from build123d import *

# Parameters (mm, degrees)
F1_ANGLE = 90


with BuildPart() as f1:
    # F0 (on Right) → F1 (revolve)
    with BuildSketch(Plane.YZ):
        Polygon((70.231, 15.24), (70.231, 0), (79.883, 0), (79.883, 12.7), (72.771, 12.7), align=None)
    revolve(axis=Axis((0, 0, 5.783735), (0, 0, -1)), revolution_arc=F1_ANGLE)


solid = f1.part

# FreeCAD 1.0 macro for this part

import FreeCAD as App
import Part
import Sketcher

V = App.Vector
Q = App.Units.Quantity

doc = App.newDocument("Part")
params = doc.addObject("Spreadsheet::Sheet", "Params")
for row, (alias, value) in enumerate([
    ("sketch1_height", "0.6 in"),
    ("sketch1_height2", "0.5 in"),
    ("sketch1_width", "0.38 in"),
    ("revolution_angle", "90 deg"),
], start=1):
    params.set(f"A{row}", alias)
    params.set(f"B{row}", "=" + value)
    params.setAlias(f"B{row}", alias)

body = doc.addObject("PartDesign::Body", "Body")

sketch1 = doc.addObject("Sketcher::SketchObject", "Sketch")
body.addObject(sketch1)
sketch1.AttachmentSupport = (doc.YZ_Plane, [""])
sketch1.MapMode = "FlatFace"
sketch1.addGeometry(Part.LineSegment(V(70.2, 15.2, 0), V(70.2, 0, 0)), False)
sketch1.addGeometry(Part.LineSegment(V(70.2, 0, 0), V(79.9, 0, 0)), False)
sketch1.addGeometry(Part.LineSegment(V(79.9, 0, 0), V(79.9, 12.7, 0)), False)
sketch1.addGeometry(Part.LineSegment(V(79.9, 12.7, 0), V(72.8, 12.7, 0)), False)
sketch1.addGeometry(Part.LineSegment(V(72.8, 12.7, 0), V(70.2, 15.2, 0)), False)
sketch1.addConstraint(Sketcher.Constraint("Coincident", 0, 2, 1, 1))
sketch1.addConstraint(Sketcher.Constraint("Coincident", 1, 2, 2, 1))
sketch1.addConstraint(Sketcher.Constraint("Coincident", 2, 2, 3, 1))
sketch1.addConstraint(Sketcher.Constraint("Coincident", 3, 2, 4, 1))
sketch1.addConstraint(Sketcher.Constraint("Coincident", 4, 2, 0, 1))
sketch1.addConstraint(Sketcher.Constraint("Vertical", 0))
sketch1.addConstraint(Sketcher.Constraint("Horizontal", 1))
sketch1.addConstraint(Sketcher.Constraint("Vertical", 2))
sketch1.addConstraint(Sketcher.Constraint("Horizontal", 3))
sketch1.addConstraint(Sketcher.Constraint("PointOnObject", 0, 2, -1))
sketch1.addConstraint(Sketcher.Constraint("DistanceY", 0, 2, 0, 1, Q("0.6 in")))
sketch1.addConstraint(Sketcher.Constraint("DistanceY", 2, 1, 2, 2, Q("0.5 in")))
sketch1.addConstraint(Sketcher.Constraint("Angle", 4, Q("135 deg")))
sketch1.addConstraint(Sketcher.Constraint("DistanceX", 1, 1, 1, 2, Q("0.38 in")))
sketch1.addConstraint(Sketcher.Constraint("DistanceX", -1, 1, 0, 2, Q("2.765 in")))
sketch1.setExpression("Constraints[10]", "Params.sketch1_height")
sketch1.setExpression("Constraints[11]", "Params.sketch1_height2")
sketch1.setExpression("Constraints[13]", "Params.sketch1_width")
revolution = doc.addObject("PartDesign::Revolution", "Revolution")
body.addObject(revolution)
revolution.Profile = sketch1
revolution.ReferenceAxis = (sketch1, ["V_Axis"])
revolution.setExpression("Angle", "Params.revolution_angle")
revolution.Reversed = True

doc.recompute()
